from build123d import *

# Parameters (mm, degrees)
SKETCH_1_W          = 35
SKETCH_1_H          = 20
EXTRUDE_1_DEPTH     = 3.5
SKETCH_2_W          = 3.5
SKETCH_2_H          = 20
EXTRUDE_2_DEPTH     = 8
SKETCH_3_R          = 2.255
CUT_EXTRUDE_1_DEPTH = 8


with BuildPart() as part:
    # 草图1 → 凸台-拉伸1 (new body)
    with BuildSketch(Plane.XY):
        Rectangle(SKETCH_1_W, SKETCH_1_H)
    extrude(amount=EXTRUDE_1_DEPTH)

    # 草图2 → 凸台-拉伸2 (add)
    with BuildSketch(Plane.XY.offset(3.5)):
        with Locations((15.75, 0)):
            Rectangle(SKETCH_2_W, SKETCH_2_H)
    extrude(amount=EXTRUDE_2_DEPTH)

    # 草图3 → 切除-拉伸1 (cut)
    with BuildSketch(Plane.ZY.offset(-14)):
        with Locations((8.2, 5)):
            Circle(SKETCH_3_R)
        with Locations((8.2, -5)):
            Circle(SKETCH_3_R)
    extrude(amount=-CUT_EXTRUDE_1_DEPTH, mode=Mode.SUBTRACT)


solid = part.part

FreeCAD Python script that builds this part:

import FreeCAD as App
import Part
import Sketcher
from FreeCAD import Vector
Q = App.Units.Quantity


def add_polygon(sketch, points):
    """Adds a closed chain of lines whose ends are joined by coincident constraints."""
    first, n = sketch.GeometryCount, len(points)
    for a, b in zip(points, points[1:] + points[:1]):
        sketch.addGeometry(Part.LineSegment(App.Vector(*a, 0), App.Vector(*b, 0)), False)
    for i in range(n):
        sketch.addConstraint(Sketcher.Constraint("Coincident", first + i, 2, first + (i + 1) % n, 1))

doc = App.newDocument("Part")
body = doc.addObject("PartDesign::Body", "Body")

# Sketch on XY plane
sketch1 = doc.addObject("Sketcher::SketchObject", "Sketch")
body.addObject(sketch1)
sketch1.AttachmentSupport = (doc.XY_Plane, [""])
sketch1.MapMode = "FlatFace"
add_polygon(sketch1, [(-18, 10), (-18, -10), (18, -10), (18, 10)])  # lines 0-3
sketch1.addConstraint([
    Sketcher.Constraint("Vertical", 0),
    Sketcher.Constraint("Horizontal", 1),
    Sketcher.Constraint("Vertical", 2),
    Sketcher.Constraint("Horizontal", 3),
    Sketcher.Constraint("Symmetric", 0, 2, 2, 2, -1, 1),
    Sketcher.Constraint("DistanceX", 1, 1, 1, 2, Q("35 mm")),
    Sketcher.Constraint("DistanceY", 0, 2, 0, 1, Q("20 mm")),
])
pad1 = doc.addObject("PartDesign::Pad", "Pad")
body.addObject(pad1)
pad1.Profile = sketch1
pad1.Length = 3.5

# Sketch on XY plane
sketch2 = doc.addObject("Sketcher::SketchObject", "Sketch001")
body.addObject(sketch2)
sketch2.AttachmentSupport = (doc.XY_Plane, [""])
sketch2.MapMode = "FlatFace"
sketch2.AttachmentOffset = App.Placement(Vector(0, 0, 3.5), App.Rotation())
add_polygon(sketch2, [(14, 10), (14, -10), (17.5, -10), (17.5, 10)])  # lines 0-3
sketch2.addConstraint([
    Sketcher.Constraint("Vertical", 0),
    Sketcher.Constraint("Horizontal", 1),
    Sketcher.Constraint("Vertical", 2),
    Sketcher.Constraint("Horizontal", 3),
    Sketcher.Constraint("DistanceY", 0, 2, 0, 1, Q("20 mm")),
    Sketcher.Constraint("DistanceX", 1, 1, 1, 2, Q("3.5 mm")),
    Sketcher.Constraint("DistanceX", -1, 1, 0, 2, Q("14 mm")),
    Sketcher.Constraint("DistanceY", 0, 2, -1, 1, Q("10 mm")),
])
pad2 = doc.addObject("PartDesign::Pad", "Pad001")
body.addObject(pad2)
pad2.Profile = sketch2
pad2.Length = 8

# Sketch on YZ plane
sketch3 = doc.addObject("Sketcher::SketchObject", "Sketch002")
body.addObject(sketch3)
sketch3.AttachmentSupport = (doc.YZ_Plane, [""])
sketch3.MapMode = "FlatFace"
sketch3.AttachmentOffset = App.Placement(Vector(0, 0, 14), App.Rotation())
sketch3.addGeometry([
    Part.Circle(Vector(5, 8.2, 0), Vector(0, 0, 1), 2.3),
    Part.Circle(Vector(-5, 8.2, 0), Vector(0, 0, 1), 2.3),
], False)
sketch3.addConstraint([
    Sketcher.Constraint("Equal", 0, 1),
    Sketcher.Constraint("Symmetric", 0, 3, 1, 3, -2),
    Sketcher.Constraint("Diameter", 0, Q("4.51 mm")),
    Sketcher.Constraint("DistanceX", -1, 1, 0, 3, Q("5 mm")),
    Sketcher.Constraint("DistanceY", -1, 1, 0, 3, Q("8.2 mm")),
])
pocket1 = doc.addObject("PartDesign::Pocket", "Pocket")
body.addObject(pocket1)
pocket1.Profile = sketch3
pocket1.Length = 8
pocket1.Reversed = True

doc.recompute()
